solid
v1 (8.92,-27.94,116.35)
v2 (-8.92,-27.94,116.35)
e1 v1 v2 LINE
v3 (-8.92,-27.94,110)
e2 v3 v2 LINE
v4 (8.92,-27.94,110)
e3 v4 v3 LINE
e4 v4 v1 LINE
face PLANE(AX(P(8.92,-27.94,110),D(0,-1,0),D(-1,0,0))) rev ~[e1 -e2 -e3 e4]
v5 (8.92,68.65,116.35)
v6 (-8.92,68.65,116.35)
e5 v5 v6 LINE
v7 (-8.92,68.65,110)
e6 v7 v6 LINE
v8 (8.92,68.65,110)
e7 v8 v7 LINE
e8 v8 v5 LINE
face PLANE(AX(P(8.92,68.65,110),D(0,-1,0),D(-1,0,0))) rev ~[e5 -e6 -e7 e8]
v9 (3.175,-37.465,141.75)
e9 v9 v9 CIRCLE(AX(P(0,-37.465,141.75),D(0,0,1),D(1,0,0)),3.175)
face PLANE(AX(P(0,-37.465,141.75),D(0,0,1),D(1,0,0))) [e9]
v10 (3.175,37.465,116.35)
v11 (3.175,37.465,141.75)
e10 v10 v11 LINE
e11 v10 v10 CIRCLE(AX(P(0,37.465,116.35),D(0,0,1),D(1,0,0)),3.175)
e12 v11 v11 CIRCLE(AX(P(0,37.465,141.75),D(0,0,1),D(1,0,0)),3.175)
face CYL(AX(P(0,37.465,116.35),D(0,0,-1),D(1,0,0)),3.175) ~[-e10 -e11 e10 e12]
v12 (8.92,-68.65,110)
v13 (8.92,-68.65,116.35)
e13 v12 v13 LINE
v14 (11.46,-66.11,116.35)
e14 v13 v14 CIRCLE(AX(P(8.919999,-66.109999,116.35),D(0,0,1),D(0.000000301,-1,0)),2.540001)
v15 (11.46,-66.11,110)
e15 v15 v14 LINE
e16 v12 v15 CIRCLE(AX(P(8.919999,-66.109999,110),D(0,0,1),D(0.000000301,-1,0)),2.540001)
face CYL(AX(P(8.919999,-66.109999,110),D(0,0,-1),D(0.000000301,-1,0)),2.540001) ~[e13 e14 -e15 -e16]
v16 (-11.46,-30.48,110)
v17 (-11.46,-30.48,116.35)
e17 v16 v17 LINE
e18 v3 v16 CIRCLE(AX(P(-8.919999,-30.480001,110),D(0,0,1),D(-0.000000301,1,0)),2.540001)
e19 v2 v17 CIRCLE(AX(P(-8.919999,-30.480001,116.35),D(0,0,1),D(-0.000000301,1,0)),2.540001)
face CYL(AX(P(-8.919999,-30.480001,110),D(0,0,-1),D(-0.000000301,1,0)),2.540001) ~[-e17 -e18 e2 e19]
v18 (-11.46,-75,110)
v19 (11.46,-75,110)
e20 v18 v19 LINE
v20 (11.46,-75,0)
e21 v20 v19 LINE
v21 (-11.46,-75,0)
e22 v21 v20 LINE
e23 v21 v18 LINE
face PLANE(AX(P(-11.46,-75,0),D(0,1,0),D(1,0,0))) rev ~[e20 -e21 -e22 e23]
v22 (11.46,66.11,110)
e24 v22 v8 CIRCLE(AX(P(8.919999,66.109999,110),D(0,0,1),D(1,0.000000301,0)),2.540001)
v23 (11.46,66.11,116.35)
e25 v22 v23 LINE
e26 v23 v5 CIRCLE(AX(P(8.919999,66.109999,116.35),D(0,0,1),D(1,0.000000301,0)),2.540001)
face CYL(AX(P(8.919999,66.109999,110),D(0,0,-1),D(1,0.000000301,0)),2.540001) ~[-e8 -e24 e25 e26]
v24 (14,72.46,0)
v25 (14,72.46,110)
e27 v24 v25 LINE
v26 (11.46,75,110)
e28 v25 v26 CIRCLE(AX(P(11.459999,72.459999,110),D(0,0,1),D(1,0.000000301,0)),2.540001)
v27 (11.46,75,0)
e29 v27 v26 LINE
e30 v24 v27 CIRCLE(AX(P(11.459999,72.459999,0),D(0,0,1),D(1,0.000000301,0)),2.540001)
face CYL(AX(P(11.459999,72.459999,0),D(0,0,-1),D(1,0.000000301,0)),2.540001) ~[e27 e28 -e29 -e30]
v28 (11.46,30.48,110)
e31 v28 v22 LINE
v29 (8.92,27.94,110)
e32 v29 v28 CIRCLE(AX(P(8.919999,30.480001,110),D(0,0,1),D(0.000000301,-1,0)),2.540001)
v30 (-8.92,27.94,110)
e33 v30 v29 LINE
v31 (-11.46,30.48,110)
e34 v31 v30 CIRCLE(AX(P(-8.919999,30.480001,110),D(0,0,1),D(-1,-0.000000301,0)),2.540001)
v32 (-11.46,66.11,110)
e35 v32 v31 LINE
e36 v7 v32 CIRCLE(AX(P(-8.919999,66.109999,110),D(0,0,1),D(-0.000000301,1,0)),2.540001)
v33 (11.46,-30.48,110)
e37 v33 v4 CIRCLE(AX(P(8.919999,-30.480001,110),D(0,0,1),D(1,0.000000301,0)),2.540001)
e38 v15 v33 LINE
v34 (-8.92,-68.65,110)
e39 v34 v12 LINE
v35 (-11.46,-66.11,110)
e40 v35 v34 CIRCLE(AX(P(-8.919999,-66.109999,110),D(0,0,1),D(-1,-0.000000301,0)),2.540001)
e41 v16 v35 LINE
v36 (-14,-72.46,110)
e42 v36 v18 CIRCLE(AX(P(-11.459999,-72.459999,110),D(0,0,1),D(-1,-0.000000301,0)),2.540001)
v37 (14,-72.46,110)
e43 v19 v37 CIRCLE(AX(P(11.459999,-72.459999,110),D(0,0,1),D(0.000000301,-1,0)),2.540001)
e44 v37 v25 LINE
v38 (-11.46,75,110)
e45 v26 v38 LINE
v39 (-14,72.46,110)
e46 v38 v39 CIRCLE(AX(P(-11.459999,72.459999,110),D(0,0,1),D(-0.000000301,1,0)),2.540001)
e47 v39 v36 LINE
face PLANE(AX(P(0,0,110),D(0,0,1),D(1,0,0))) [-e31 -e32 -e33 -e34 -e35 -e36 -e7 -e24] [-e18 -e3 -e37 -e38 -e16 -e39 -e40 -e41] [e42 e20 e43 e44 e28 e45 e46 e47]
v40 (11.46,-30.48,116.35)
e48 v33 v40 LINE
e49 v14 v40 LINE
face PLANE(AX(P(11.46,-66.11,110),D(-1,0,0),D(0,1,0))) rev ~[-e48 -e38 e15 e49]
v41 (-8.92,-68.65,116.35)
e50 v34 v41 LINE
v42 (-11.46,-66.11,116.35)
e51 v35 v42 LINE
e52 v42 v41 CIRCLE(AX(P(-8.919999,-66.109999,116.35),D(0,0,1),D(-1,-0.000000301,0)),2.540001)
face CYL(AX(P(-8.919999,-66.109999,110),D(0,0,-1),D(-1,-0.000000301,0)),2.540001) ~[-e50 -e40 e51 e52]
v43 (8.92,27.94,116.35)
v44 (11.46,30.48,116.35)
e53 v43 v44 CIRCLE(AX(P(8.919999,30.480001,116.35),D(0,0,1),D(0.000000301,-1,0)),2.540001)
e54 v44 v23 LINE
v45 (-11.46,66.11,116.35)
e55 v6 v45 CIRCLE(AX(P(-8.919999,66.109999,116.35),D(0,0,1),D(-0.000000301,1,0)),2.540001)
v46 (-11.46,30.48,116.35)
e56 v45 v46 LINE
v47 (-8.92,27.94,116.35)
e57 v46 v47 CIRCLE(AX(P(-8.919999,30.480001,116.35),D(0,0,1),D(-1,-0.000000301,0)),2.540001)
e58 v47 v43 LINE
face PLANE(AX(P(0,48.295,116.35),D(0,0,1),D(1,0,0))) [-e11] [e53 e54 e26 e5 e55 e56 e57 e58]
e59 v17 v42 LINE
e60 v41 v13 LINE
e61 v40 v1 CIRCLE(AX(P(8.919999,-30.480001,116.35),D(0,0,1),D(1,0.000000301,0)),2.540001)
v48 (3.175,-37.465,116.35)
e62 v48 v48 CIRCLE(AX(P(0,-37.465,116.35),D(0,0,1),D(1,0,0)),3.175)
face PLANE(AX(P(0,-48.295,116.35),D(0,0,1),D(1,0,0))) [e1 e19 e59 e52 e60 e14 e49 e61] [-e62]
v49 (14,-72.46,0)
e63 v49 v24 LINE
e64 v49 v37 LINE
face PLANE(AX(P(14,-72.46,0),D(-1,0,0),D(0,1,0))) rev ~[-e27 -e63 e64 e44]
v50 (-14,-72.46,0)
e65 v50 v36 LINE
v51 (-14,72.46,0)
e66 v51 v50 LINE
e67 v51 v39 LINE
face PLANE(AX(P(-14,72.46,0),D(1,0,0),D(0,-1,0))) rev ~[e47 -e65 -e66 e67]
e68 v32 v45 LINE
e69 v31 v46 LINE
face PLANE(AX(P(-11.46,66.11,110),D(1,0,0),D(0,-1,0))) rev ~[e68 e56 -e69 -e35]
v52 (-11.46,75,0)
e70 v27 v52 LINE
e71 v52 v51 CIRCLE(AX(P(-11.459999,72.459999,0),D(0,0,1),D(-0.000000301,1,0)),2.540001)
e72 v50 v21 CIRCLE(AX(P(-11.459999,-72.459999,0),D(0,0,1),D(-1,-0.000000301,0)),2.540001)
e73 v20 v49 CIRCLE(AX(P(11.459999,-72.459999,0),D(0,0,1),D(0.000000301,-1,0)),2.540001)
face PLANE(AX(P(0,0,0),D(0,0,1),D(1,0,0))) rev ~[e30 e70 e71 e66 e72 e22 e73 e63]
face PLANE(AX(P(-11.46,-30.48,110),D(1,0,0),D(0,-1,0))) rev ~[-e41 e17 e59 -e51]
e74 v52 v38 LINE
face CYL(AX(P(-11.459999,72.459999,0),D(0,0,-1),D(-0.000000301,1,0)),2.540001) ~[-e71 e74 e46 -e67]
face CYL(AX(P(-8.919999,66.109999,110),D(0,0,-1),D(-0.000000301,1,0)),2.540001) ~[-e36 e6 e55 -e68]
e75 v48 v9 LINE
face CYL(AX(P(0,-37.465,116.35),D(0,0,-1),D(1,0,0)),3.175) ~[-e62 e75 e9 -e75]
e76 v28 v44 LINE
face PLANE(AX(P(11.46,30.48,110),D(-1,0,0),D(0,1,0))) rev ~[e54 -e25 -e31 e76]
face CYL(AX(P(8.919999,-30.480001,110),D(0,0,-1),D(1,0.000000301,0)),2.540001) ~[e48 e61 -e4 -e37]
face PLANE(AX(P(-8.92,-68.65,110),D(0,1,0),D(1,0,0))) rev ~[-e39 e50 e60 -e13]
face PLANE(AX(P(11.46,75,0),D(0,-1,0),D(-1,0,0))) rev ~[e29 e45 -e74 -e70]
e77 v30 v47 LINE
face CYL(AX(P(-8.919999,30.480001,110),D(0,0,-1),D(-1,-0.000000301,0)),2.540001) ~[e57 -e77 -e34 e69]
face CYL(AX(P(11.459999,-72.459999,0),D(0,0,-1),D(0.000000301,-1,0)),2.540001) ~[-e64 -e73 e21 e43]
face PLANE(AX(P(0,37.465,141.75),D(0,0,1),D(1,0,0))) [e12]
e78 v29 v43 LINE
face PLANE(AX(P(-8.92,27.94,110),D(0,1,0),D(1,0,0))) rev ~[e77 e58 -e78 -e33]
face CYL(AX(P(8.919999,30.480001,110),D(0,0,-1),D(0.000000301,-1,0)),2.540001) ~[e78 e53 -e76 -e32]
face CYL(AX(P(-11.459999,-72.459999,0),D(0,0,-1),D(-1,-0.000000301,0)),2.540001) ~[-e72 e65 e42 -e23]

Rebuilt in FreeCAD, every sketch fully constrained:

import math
import FreeCAD as App
import Part
import Sketcher

V = App.Vector
Q = App.Units.Quantity

doc = App.newDocument("Part")
body = doc.addObject("PartDesign::Body", "Body")

# Sketch on XY plane
sketch1 = doc.addObject("Sketcher::SketchObject", "Sketch")
body.addObject(sketch1)
sketch1.AttachmentSupport = (doc.XY_Plane, [""])
sketch1.MapMode = "FlatFace"
sketch1.addGeometry([
    Part.ArcOfCircle(Part.Circle(V(11.5, 72.5, 0), V(0, 0, 1), 2.5), math.radians(0), math.radians(90)),  # 0
    Part.LineSegment(V(11.5, 75, 0), V(-11.5, 75, 0)),  # 1
    Part.ArcOfCircle(Part.Circle(V(-11.5, 72.5, 0), V(0, 0, 1), 2.5), math.radians(90), math.radians(180)),  # 2
    Part.LineSegment(V(-14, 72.5, 0), V(-14, -72.5, 0)),  # 3
    Part.ArcOfCircle(Part.Circle(V(-11.5, -72.5, 0), V(0, 0, 1), 2.5), math.radians(-180), math.radians(-90)),  # 4
    Part.LineSegment(V(-11.5, -75, 0), V(11.5, -75, 0)),  # 5
    Part.ArcOfCircle(Part.Circle(V(11.5, -72.5, 0), V(0, 0, 1), 2.5), math.radians(-90), math.radians(0)),  # 6
    Part.LineSegment(V(14, -72.5, 0), V(14, 72.5, 0)),  # 7
], False)
sketch1.addConstraint([
    Sketcher.Constraint("Tangent", 0, 2, 1, 1),
    Sketcher.Constraint("Tangent", 1, 2, 2, 1),
    Sketcher.Constraint("Tangent", 2, 2, 3, 1),
    Sketcher.Constraint("Tangent", 3, 2, 4, 1),
    Sketcher.Constraint("Tangent", 4, 2, 5, 1),
    Sketcher.Constraint("Tangent", 5, 2, 6, 1),
    Sketcher.Constraint("Tangent", 6, 2, 7, 1),
    Sketcher.Constraint("Tangent", 7, 2, 0, 1),
    Sketcher.Constraint("Horizontal", 1),
    Sketcher.Constraint("Vertical", 3),
    Sketcher.Constraint("Horizontal", 5),
    Sketcher.Constraint("Vertical", 7),
    Sketcher.Constraint("Equal", 0, 2),
    Sketcher.Constraint("Equal", 2, 4),
    Sketcher.Constraint("Equal", 4, 6),
    Sketcher.Constraint("Symmetric", 0, 3, 4, 3, -1, 1),
    Sketcher.Constraint("Radius", 0, Q("0.1 in")),
    Sketcher.Constraint("DistanceX", 1, 2, 1, 1, Q("22.92 mm")),
    Sketcher.Constraint("DistanceY", 3, 2, 3, 1, Q("144.92 mm")),
])
pad1 = doc.addObject("PartDesign::Pad", "Pad")
body.addObject(pad1)
pad1.Profile = sketch1
pad1.Length = 110

# Sketch on XY plane
sketch2 = doc.addObject("Sketcher::SketchObject", "Sketch001")
body.addObject(sketch2)
sketch2.AttachmentSupport = (doc.XY_Plane, [""])
sketch2.MapMode = "FlatFace"
sketch2.AttachmentOffset = App.Placement(V(0, 0, 110), App.Rotation())
sketch2.addGeometry([
    Part.ArcOfCircle(Part.Circle(V(-8.9, -66.1, 0), V(0, 0, 1), 2.5), math.radians(-180), math.radians(-90)),  # 0
    Part.LineSegment(V(-8.9, -68.7, 0), V(8.9, -68.7, 0)),  # 1
    Part.ArcOfCircle(Part.Circle(V(8.9, -66.1, 0), V(0, 0, 1), 2.5), math.radians(-90), math.radians(0)),  # 2
    Part.LineSegment(V(11.5, -66.1, 0), V(11.5, -30.5, 0)),  # 3
    Part.ArcOfCircle(Part.Circle(V(8.9, -30.5, 0), V(0, 0, 1), 2.5), math.radians(0), math.radians(90)),  # 4
    Part.LineSegment(V(8.9, -27.9, 0), V(-8.9, -27.9, 0)),  # 5
    Part.ArcOfCircle(Part.Circle(V(-8.9, -30.5, 0), V(0, 0, 1), 2.5), math.radians(90), math.radians(180)),  # 6
    Part.LineSegment(V(-11.5, -30.5, 0), V(-11.5, -66.1, 0)),  # 7
    Part.LineSegment(V(8.9, 68.7, 0), V(-8.9, 68.7, 0)),  # 8
    Part.ArcOfCircle(Part.Circle(V(-8.9, 66.1, 0), V(0, 0, 1), 2.5), math.radians(90), math.radians(180)),  # 9
    Part.LineSegment(V(-11.5, 66.1, 0), V(-11.5, 30.5, 0)),  # 10
    Part.ArcOfCircle(Part.Circle(V(-8.9, 30.5, 0), V(0, 0, 1), 2.5), math.radians(-180), math.radians(-90)),  # 11
    Part.LineSegment(V(-8.9, 27.9, 0), V(8.9, 27.9, 0)),  # 12
    Part.ArcOfCircle(Part.Circle(V(8.9, 30.5, 0), V(0, 0, 1), 2.5), math.radians(-90), math.radians(0)),  # 13
    Part.LineSegment(V(11.5, 30.5, 0), V(11.5, 66.1, 0)),  # 14
    Part.ArcOfCircle(Part.Circle(V(8.9, 66.1, 0), V(0, 0, 1), 2.5), math.radians(0), math.radians(90)),  # 15
], False)
sketch2.addConstraint([
    Sketcher.Constraint("Tangent", 0, 2, 1, 1),
    Sketcher.Constraint("Tangent", 1, 2, 2, 1),
    Sketcher.Constraint("Tangent", 2, 2, 3, 1),
    Sketcher.Constraint("Tangent", 3, 2, 4, 1),
    Sketcher.Constraint("Tangent", 4, 2, 5, 1),
    Sketcher.Constraint("Tangent", 5, 2, 6, 1),
    Sketcher.Constraint("Tangent", 6, 2, 7, 1),
    Sketcher.Constraint("Tangent", 7, 2, 0, 1),
    Sketcher.Constraint("Tangent", 8, 2, 9, 1),
    Sketcher.Constraint("Tangent", 9, 2, 10, 1),
    Sketcher.Constraint("Tangent", 10, 2, 11, 1),
    Sketcher.Constraint("Tangent", 11, 2, 12, 1),
    Sketcher.Constraint("Tangent", 12, 2, 13, 1),
    Sketcher.Constraint("Tangent", 13, 2, 14, 1),
    Sketcher.Constraint("Tangent", 14, 2, 15, 1),
    Sketcher.Constraint("Tangent", 15, 2, 8, 1),
    Sketcher.Constraint("Horizontal", 1),
    Sketcher.Constraint("Vertical", 3),
    Sketcher.Constraint("Horizontal", 5),
    Sketcher.Constraint("Vertical", 7),
    Sketcher.Constraint("Horizontal", 8),
    Sketcher.Constraint("Vertical", 10),
    Sketcher.Constraint("Horizontal", 12),
    Sketcher.Constraint("Vertical", 14),
    Sketcher.Constraint("Equal", 0, 2),
    Sketcher.Constraint("Equal", 2, 4),
    Sketcher.Constraint("Equal", 4, 6),
    Sketcher.Constraint("Equal", 6, 9),
    Sketcher.Constraint("Equal", 9, 11),
    Sketcher.Constraint("Equal", 11, 13),
    Sketcher.Constraint("Equal", 13, 15),
    Sketcher.Constraint("Symmetric", 2, 3, 9, 3, -1, 1),
    Sketcher.Constraint("Symmetric", 6, 3, 13, 3, -1, 1),
    Sketcher.Constraint("Vertical", 6, 3, 9, 3),
    Sketcher.Constraint("Radius", 0, Q("0.1 in")),
    Sketcher.Constraint("DistanceY", 4, 3, -1, 1, Q("1.2 in")),
    Sketcher.Constraint("DistanceX", 1, 1, 1, 2, Q("17.84 mm")),
    Sketcher.Constraint("DistanceY", 3, 1, 3, 2, Q("35.63 mm")),
])
pad2 = doc.addObject("PartDesign::Pad", "Pad001")
body.addObject(pad2)
pad2.Profile = sketch2
pad2.Length = Q("0.25 in")

# Sketch on XY plane
sketch3 = doc.addObject("Sketcher::SketchObject", "Sketch002")
body.addObject(sketch3)
sketch3.AttachmentSupport = (doc.XY_Plane, [""])
sketch3.MapMode = "FlatFace"
sketch3.AttachmentOffset = App.Placement(V(0, 0, 116.35), App.Rotation())
sketch3.addGeometry([
    Part.Circle(V(0, -37.5, 0), V(0, 0, 1), 3.2),
    Part.Circle(V(0, 37.5, 0), V(0, 0, 1), 3.2),
], False)
sketch3.addConstraint([
    Sketcher.Constraint("Equal", 0, 1),
    Sketcher.Constraint("Symmetric", 0, 3, 1, 3, -1, 1),
    Sketcher.Constraint("PointOnObject", 0, 3, -2),
    Sketcher.Constraint("Diameter", 0, Q("0.25 in")),
    Sketcher.Constraint("DistanceY", 0, 3, 1, 3, Q("2.95 in")),
])
pad3 = doc.addObject("PartDesign::Pad", "Pad002")
body.addObject(pad3)
pad3.Profile = sketch3
pad3.Length = Q("1 in")

doc.recompute()
